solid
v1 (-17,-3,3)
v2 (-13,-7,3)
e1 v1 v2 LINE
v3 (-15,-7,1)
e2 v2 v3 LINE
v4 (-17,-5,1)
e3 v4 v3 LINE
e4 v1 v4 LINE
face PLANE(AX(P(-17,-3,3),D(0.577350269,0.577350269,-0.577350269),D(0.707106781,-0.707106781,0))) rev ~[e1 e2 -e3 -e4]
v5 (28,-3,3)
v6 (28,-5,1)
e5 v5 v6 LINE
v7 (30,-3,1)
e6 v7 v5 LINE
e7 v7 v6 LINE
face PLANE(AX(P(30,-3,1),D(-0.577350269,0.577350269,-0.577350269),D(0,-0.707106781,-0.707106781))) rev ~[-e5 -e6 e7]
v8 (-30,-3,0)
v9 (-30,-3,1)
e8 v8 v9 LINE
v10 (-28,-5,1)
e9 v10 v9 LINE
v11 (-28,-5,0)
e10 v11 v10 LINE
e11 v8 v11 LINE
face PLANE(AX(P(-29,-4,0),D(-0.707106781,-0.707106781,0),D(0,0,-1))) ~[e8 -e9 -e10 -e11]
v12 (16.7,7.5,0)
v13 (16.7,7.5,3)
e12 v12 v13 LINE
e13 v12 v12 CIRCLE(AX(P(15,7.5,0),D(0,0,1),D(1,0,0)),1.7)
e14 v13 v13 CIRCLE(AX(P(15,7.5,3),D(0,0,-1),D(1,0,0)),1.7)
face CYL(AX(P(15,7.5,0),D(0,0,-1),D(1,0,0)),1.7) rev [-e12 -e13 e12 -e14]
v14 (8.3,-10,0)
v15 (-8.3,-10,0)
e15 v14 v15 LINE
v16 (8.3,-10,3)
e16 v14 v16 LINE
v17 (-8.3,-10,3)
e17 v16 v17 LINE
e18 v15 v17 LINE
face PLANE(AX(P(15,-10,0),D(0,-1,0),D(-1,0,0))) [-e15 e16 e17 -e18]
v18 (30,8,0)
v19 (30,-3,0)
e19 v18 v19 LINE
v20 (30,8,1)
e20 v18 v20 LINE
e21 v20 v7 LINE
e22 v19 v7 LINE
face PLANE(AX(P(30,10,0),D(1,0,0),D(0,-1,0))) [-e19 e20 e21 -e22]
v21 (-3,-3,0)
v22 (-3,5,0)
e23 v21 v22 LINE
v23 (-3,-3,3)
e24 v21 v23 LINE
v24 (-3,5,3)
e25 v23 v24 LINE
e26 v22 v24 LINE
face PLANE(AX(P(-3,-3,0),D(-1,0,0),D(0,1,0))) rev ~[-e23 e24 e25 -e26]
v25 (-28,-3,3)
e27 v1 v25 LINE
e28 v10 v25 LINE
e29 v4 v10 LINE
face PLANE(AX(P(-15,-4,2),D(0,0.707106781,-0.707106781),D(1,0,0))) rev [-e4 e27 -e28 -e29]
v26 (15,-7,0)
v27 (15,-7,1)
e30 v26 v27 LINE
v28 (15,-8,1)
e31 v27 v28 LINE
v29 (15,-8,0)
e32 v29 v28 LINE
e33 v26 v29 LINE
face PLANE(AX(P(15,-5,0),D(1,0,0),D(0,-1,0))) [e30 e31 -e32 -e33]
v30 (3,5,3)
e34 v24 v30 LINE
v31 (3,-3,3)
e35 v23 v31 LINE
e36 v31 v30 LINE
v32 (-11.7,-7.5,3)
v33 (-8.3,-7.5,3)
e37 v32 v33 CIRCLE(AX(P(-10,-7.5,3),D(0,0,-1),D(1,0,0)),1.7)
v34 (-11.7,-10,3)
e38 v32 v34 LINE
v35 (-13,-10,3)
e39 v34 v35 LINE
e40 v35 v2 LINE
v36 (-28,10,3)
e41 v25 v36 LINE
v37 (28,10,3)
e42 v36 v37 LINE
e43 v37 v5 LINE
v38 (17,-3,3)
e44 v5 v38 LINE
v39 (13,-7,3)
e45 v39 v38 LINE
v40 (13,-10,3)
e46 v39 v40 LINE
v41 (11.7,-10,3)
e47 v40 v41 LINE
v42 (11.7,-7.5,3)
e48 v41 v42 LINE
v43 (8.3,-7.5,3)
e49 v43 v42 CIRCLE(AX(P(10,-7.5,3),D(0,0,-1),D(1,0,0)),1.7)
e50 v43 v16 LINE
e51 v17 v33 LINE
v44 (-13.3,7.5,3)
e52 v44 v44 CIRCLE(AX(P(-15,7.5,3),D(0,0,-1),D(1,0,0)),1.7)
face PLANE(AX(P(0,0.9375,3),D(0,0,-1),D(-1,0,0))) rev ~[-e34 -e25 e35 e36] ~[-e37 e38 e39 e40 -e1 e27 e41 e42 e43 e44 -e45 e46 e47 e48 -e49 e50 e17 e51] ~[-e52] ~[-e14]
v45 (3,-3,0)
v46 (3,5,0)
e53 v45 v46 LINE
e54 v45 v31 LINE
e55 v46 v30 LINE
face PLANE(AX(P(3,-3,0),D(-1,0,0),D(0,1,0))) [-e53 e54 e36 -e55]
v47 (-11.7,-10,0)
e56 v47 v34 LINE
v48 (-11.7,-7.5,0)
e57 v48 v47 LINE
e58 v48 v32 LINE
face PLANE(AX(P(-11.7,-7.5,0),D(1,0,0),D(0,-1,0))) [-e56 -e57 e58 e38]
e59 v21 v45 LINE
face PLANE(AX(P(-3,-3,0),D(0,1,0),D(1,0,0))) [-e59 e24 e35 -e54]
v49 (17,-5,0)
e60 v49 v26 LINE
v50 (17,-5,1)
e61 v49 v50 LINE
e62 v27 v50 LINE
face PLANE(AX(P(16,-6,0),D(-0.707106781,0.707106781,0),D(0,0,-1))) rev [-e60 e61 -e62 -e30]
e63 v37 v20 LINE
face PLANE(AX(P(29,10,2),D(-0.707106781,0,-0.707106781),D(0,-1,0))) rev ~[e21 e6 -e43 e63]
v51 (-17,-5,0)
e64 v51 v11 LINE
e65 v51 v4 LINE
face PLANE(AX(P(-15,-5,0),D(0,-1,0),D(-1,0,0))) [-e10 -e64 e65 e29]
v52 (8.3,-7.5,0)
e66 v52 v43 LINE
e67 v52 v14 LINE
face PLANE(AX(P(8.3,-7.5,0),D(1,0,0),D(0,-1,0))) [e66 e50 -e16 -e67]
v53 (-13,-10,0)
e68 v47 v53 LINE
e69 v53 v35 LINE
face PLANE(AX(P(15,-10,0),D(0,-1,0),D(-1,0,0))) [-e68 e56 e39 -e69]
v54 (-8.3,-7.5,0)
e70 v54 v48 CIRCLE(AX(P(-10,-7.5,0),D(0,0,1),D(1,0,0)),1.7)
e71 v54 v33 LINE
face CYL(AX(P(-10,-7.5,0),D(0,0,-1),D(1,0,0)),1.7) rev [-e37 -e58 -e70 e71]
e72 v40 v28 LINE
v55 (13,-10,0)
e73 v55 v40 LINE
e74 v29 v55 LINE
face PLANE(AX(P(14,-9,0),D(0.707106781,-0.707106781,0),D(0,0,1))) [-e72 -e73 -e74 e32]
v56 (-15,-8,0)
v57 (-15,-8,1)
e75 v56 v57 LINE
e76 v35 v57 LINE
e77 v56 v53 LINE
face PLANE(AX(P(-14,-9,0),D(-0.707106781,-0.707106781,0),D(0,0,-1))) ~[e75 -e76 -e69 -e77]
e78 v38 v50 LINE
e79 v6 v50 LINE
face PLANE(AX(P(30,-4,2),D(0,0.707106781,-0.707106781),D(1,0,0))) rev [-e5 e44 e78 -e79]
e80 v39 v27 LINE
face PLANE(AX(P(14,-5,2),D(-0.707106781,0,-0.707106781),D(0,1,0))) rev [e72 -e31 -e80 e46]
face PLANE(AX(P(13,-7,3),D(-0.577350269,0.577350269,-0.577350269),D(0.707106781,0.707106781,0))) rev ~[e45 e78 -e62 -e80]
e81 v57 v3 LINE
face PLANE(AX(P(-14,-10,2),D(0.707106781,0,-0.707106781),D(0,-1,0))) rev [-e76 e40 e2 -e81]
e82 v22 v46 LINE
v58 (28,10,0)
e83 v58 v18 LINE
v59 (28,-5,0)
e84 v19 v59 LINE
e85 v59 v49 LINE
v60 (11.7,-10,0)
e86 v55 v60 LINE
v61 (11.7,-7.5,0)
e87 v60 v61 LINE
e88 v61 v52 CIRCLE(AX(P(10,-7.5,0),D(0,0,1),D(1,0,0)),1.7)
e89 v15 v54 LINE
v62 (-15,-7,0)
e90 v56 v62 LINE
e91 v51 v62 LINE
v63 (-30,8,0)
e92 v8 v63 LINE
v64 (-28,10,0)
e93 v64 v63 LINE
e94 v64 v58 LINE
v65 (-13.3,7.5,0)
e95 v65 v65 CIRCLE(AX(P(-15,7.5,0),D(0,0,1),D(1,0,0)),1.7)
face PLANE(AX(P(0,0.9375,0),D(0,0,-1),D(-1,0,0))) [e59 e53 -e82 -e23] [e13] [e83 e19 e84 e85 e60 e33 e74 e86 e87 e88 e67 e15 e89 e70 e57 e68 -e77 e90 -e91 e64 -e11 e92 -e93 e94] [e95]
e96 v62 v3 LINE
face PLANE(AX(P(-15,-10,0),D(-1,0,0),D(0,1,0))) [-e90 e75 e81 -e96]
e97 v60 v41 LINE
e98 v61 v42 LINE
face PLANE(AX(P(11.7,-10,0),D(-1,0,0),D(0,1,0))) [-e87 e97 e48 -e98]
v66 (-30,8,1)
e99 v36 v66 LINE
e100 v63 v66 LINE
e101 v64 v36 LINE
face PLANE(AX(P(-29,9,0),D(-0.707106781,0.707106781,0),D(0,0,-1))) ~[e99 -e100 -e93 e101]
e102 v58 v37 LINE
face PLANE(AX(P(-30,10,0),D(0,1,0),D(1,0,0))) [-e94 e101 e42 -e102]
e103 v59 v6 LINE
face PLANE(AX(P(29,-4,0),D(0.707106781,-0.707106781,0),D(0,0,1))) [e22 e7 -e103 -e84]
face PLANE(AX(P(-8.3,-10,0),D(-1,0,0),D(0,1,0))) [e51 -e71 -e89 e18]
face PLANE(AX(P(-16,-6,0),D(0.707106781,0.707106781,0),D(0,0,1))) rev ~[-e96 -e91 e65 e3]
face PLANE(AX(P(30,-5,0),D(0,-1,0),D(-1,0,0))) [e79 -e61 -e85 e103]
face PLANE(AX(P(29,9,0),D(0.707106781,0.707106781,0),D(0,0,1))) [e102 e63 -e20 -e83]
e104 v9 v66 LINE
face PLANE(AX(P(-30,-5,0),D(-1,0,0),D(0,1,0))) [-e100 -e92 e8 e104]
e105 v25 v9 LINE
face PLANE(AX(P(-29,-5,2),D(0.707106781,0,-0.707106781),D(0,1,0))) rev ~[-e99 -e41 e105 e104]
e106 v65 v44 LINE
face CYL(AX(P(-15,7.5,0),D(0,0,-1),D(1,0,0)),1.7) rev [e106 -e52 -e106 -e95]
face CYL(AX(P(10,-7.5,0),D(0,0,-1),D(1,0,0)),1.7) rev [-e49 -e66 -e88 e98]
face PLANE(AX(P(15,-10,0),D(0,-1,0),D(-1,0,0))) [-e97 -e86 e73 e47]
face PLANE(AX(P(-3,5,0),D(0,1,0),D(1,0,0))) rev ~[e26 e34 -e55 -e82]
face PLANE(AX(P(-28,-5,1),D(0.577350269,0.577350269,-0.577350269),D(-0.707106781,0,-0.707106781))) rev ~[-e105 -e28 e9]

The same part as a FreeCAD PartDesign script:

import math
import FreeCAD as App
import Part
import Sketcher
from FreeCAD import Vector
Q = App.Units.Quantity


def edges_at(feature, points):
    """Names of the edges that pass closest to the given points."""
    edges = feature.Shape.Edges
    near = lambda p: min(range(len(edges)), key=lambda i: edges[i].distToShape(Part.Vertex(*p))[0])
    return sorted({f"Edge{near(p) + 1}" for p in points})

doc = App.newDocument("Part")
body = doc.addObject("PartDesign::Body", "Body")

# Sketch on XY plane
sketch1 = body.newObject("Sketcher::SketchObject", "Sketch")
sketch1.AttachmentSupport = (doc.getObject("XY_Plane"), [""])
sketch1.MapMode = "FlatFace"
sketch1.addGeometry([
    Part.LineSegment(Vector(30, 10, 0), Vector(-30, 10, 0)),  # 0
    Part.LineSegment(Vector(-30, 10, 0), Vector(-30, -5, 0)),  # 1
    Part.LineSegment(Vector(-30, -5, 0), Vector(-15, -5, 0)),  # 2
    Part.LineSegment(Vector(-15, -5, 0), Vector(-15, -10, 0)),  # 3
    Part.LineSegment(Vector(-15, -10, 0), Vector(15, -10, 0)),  # 4
    Part.LineSegment(Vector(15, -10, 0), Vector(15, -5, 0)),  # 5
    Part.LineSegment(Vector(15, -5, 0), Vector(30, -5, 0)),  # 6
    Part.LineSegment(Vector(30, -5, 0), Vector(30, 10, 0)),  # 7
], False)
sketch1.addConstraint([
    Sketcher.Constraint("Coincident", 0, 2, 1, 1),
    Sketcher.Constraint("Coincident", 1, 2, 2, 1),
    Sketcher.Constraint("Coincident", 2, 2, 3, 1),
    Sketcher.Constraint("Coincident", 3, 2, 4, 1),
    Sketcher.Constraint("Coincident", 4, 2, 5, 1),
    Sketcher.Constraint("Coincident", 5, 2, 6, 1),
    Sketcher.Constraint("Coincident", 6, 2, 7, 1),
    Sketcher.Constraint("Coincident", 7, 2, 0, 1),
    Sketcher.Constraint("Horizontal", 0),
    Sketcher.Constraint("Vertical", 1),
    Sketcher.Constraint("Horizontal", 2),
    Sketcher.Constraint("Vertical", 3),
    Sketcher.Constraint("Horizontal", 4),
    Sketcher.Constraint("Vertical", 5),
    Sketcher.Constraint("Horizontal", 6),
    Sketcher.Constraint("Vertical", 7),
    Sketcher.Constraint("Symmetric", 2, 2, 5, 2, -2),
    Sketcher.Constraint("Equal", 2, 6),
    Sketcher.Constraint("Equal", 6, 1),
    Sketcher.Constraint("DistanceX", 0, 2, 0, 1, Q("60 mm")),
    Sketcher.Constraint("DistanceX", 2, 1, 2, 2, Q("15 mm")),
    Sketcher.Constraint("DistanceY", 3, 2, 3, 1, Q("5 mm")),
    Sketcher.Constraint("DistanceY", -1, 1, 0, 2, Q("10 mm")),
])
pad1 = body.newObject("PartDesign::Pad", "Pad")
pad1.Profile = sketch1
pad1.Length = 3

# Sketch on XY plane
sketch2 = body.newObject("Sketcher::SketchObject", "Sketch001")
sketch2.AttachmentSupport = (doc.getObject("XY_Plane"), [""])
sketch2.MapMode = "FlatFace"
sketch2.addGeometry([
    Part.LineSegment(Vector(-3, 5, 0), Vector(-3, -3, 0)),
    Part.LineSegment(Vector(-3, -3, 0), Vector(3, -3, 0)),
    Part.LineSegment(Vector(3, -3, 0), Vector(3, 5, 0)),
    Part.LineSegment(Vector(3, 5, 0), Vector(-3, 5, 0)),
], False)
sketch2.addConstraint([
    Sketcher.Constraint("Coincident", 0, 2, 1, 1),
    Sketcher.Constraint("Coincident", 1, 2, 2, 1),
    Sketcher.Constraint("Coincident", 2, 2, 3, 1),
    Sketcher.Constraint("Coincident", 3, 2, 0, 1),
    Sketcher.Constraint("Vertical", 0),
    Sketcher.Constraint("Horizontal", 1),
    Sketcher.Constraint("Vertical", 2),
    Sketcher.Constraint("Horizontal", 3),
    Sketcher.Constraint("DistanceX", 1, 1, 1, 2, Q("6 mm")),
    Sketcher.Constraint("DistanceY", 0, 2, 0, 1, Q("8 mm")),
    Sketcher.Constraint("DistanceX", 0, 2, -1, 1, Q("3 mm")),
    Sketcher.Constraint("DistanceY", 0, 2, -1, 1, Q("3 mm")),
])
pocket1 = body.newObject("PartDesign::Pocket", "Pocket")
pocket1.Profile = sketch2
pocket1.Length = 5
pocket1.Reversed = True

# Sketch on XY plane
sketch3 = body.newObject("Sketcher::SketchObject", "Sketch002")
sketch3.AttachmentSupport = (doc.getObject("XY_Plane"), [""])
sketch3.MapMode = "FlatFace"
sketch3.addGeometry([
    Part.Circle(Vector(-15, 7.5, 0), Vector(0, 0, 1), 1.7),
    Part.Circle(Vector(15, 7.5, 0), Vector(0, 0, 1), 1.7),
    Part.Circle(Vector(-10, -7.5, 0), Vector(0, 0, 1), 1.7),
    Part.Circle(Vector(10, -7.5, 0), Vector(0, 0, 1), 1.7),
], False)
sketch3.addConstraint([
    Sketcher.Constraint("Equal", 0, 1),
    Sketcher.Constraint("Equal", 1, 2),
    Sketcher.Constraint("Equal", 2, 3),
    Sketcher.Constraint("Symmetric", 0, 3, 1, 3, -2),
    Sketcher.Constraint("Symmetric", 2, 3, 3, 3, -2),
    Sketcher.Constraint("Diameter", 0, Q("3.4 mm")),
    Sketcher.Constraint("DistanceX", 0, 3, -1, 1, Q("15 mm")),
    Sketcher.Constraint("DistanceX", 2, 3, -1, 1, Q("10 mm")),
    Sketcher.Constraint("DistanceY", 2, 3, 0, 3, Q("15 mm")),
    Sketcher.Constraint("DistanceY", -1, 1, 0, 3, Q("7.5 mm")),
])
pocket2 = body.newObject("PartDesign::Pocket", "Pocket001")
pocket2.Profile = sketch3
pocket2.Length = 25
pocket2.Reversed = True
doc.recompute()

chamfer = body.newObject("PartDesign::Chamfer", "Chamfer")
chamfer.Base = (pocket2, edges_at(pocket2, [
    (-30, 10, 1.5),
    (30, 10, 1.5),
    (-30, 2.5, 3),
    (-22.5, -5, 3),
    (-15, -7.5, 3),
    (15, -7.5, 3),
    (22.5, -5, 3),
    (30, 2.5, 3),
    (30, -5, 1.5),
    (15, -10, 1.5),
    (15, -5, 1.5),
    (-15, -10, 1.5),
    (-15, -5, 1.5),
    (-30, -5, 1.5),
]))
chamfer.Size = 2

# Sketch on XY plane
sketch4 = body.newObject("Sketcher::SketchObject", "Sketch003")
sketch4.AttachmentSupport = (doc.getObject("XY_Plane"), [""])
sketch4.MapMode = "FlatFace"
sketch4.addGeometry([
    Part.LineSegment(Vector(-11.7, -7.5, 0), Vector(-11.7, -10, 0)),  # 0
    Part.LineSegment(Vector(-11.7, -10, 0), Vector(-8.3, -10, 0)),  # 1
    Part.LineSegment(Vector(-8.3, -10, 0), Vector(-8.3, -7.5, 0)),  # 2
    Part.ArcOfCircle(Part.Circle(Vector(-10, -7.5, 0), Vector(0, 0, 1), 1.7), math.radians(0), math.radians(180)),  # 3
    Part.LineSegment(Vector(8.3, -7.5, 0), Vector(8.3, -10, 0)),  # 4
    Part.LineSegment(Vector(8.3, -10, 0), Vector(11.7, -10, 0)),  # 5
    Part.LineSegment(Vector(11.7, -10, 0), Vector(11.7, -7.5, 0)),  # 6
    Part.ArcOfCircle(Part.Circle(Vector(10, -7.5, 0), Vector(0, 0, 1), 1.7), math.radians(0), math.radians(180)),  # 7
], False)
sketch4.addConstraint([
    Sketcher.Constraint("Coincident", 0, 2, 1, 1),
    Sketcher.Constraint("Coincident", 1, 2, 2, 1),
    Sketcher.Constraint("Tangent", 2, 2, 3, 1),
    Sketcher.Constraint("Tangent", 3, 2, 0, 1),
    Sketcher.Constraint("Coincident", 4, 2, 5, 1),
    Sketcher.Constraint("Coincident", 5, 2, 6, 1),
    Sketcher.Constraint("Tangent", 6, 2, 7, 1),
    Sketcher.Constraint("Tangent", 7, 2, 4, 1),
    Sketcher.Constraint("Vertical", 0),
    Sketcher.Constraint("Horizontal", 1),
    Sketcher.Constraint("Vertical", 2),
    Sketcher.Constraint("Vertical", 4),
    Sketcher.Constraint("Horizontal", 5),
    Sketcher.Constraint("Vertical", 6),
    Sketcher.Constraint("Equal", 3, 7),
    Sketcher.Constraint("Symmetric", 3, 3, 7, 3, -2),
    Sketcher.Constraint("Horizontal", 1, 2, 4, 2),
    Sketcher.Constraint("Radius", 3, Q("1.7 mm")),
    Sketcher.Constraint("DistanceY", 0, 2, 0, 1, Q("2.5 mm")),
    Sketcher.Constraint("DistanceX", 3, 3, -1, 1, Q("10 mm")),
    Sketcher.Constraint("DistanceY", 0, 2, -1, 1, Q("10 mm")),
])
pocket3 = body.newObject("PartDesign::Pocket", "Pocket002")
pocket3.Profile = sketch4
pocket3.Length = 5
pocket3.Reversed = True

doc.recompute()
